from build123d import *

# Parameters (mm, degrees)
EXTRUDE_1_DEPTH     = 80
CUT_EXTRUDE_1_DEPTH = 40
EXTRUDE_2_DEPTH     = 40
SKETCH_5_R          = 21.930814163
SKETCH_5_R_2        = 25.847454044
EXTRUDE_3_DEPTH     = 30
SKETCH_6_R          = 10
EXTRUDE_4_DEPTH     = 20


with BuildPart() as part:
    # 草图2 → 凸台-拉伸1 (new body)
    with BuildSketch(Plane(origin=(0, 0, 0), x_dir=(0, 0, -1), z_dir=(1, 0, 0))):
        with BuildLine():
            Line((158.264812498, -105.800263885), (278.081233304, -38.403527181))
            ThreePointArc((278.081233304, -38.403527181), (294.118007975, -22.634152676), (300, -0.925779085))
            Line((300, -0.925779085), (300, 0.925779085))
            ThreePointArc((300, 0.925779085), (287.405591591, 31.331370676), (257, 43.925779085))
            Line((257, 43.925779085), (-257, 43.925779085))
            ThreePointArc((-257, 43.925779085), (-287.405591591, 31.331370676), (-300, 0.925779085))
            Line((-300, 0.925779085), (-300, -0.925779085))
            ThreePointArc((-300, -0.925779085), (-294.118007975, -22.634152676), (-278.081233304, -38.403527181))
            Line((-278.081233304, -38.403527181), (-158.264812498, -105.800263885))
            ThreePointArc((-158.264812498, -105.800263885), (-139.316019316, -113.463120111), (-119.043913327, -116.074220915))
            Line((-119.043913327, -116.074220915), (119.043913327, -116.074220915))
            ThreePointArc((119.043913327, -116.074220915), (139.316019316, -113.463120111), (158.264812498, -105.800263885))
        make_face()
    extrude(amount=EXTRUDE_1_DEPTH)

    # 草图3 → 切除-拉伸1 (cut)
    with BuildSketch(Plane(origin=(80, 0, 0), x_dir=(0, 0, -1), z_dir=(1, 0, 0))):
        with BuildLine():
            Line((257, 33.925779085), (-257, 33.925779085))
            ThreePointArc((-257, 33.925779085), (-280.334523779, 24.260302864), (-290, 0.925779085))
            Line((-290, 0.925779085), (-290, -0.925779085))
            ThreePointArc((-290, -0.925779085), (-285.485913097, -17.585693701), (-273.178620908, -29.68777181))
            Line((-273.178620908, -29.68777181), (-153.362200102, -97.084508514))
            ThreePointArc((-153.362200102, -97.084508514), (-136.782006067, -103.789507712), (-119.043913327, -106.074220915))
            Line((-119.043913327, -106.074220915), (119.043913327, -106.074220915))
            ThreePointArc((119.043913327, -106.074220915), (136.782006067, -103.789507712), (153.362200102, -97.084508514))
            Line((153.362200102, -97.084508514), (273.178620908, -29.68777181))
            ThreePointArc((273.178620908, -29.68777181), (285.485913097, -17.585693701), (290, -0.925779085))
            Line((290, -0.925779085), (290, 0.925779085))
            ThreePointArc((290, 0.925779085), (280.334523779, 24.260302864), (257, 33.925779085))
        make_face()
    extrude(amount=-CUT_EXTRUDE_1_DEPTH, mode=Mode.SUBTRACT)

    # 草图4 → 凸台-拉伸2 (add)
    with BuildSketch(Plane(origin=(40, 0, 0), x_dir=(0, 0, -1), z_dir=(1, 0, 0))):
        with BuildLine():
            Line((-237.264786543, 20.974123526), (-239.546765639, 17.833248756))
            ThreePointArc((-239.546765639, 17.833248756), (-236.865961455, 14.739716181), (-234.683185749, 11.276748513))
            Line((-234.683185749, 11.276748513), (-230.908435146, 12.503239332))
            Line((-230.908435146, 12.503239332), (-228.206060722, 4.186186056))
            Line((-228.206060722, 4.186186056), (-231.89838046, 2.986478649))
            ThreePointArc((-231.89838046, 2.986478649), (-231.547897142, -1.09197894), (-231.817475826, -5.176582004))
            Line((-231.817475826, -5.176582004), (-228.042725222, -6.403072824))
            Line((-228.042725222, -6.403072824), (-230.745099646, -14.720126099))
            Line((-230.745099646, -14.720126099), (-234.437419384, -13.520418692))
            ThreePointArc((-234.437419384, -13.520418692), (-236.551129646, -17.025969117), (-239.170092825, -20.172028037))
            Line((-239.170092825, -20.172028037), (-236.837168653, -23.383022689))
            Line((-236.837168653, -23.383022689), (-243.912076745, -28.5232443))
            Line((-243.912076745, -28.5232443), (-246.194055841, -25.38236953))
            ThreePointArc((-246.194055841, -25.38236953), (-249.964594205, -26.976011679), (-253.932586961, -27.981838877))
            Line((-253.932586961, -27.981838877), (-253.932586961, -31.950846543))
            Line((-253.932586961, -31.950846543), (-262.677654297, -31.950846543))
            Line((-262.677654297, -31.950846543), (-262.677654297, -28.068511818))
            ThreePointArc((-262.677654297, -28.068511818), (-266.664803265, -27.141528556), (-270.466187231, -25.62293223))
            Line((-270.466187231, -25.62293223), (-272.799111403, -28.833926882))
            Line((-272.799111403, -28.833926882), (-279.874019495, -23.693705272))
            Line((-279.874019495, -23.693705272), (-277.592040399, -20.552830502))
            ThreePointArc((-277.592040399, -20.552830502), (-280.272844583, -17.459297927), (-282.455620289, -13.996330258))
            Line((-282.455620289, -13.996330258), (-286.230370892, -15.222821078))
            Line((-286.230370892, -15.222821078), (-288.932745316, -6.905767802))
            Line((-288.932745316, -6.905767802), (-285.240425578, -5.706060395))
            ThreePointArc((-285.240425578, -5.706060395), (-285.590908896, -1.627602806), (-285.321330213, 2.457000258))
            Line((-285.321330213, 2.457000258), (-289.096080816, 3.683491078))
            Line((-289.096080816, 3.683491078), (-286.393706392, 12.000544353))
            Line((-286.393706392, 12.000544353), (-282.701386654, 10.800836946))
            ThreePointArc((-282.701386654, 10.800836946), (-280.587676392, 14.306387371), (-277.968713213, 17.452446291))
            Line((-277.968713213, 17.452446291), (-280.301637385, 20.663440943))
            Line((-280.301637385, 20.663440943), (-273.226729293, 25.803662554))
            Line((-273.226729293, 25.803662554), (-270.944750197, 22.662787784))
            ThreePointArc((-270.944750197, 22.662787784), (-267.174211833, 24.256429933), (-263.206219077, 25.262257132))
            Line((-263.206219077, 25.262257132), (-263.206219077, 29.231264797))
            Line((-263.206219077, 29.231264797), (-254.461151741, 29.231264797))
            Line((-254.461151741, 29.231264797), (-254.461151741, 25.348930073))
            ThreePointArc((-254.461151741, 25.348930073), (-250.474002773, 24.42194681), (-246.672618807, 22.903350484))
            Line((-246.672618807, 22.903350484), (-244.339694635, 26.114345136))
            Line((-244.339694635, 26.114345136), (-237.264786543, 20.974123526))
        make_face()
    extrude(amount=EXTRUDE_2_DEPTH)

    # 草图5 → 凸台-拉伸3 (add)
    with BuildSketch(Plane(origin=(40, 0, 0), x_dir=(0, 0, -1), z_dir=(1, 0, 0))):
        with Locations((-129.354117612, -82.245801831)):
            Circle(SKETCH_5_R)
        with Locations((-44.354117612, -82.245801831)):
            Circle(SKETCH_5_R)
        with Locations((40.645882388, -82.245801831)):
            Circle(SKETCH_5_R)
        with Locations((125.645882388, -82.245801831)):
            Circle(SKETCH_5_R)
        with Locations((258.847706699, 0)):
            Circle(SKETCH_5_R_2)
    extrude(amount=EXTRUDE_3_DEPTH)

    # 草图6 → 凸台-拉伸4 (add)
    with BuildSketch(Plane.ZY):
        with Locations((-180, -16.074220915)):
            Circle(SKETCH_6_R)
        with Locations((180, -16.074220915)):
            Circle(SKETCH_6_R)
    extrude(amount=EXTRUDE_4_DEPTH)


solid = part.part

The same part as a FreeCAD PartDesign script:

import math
import FreeCAD as App
import Part
import Sketcher
from FreeCAD import Vector
Q = App.Units.Quantity

doc = App.newDocument("Part")
body = doc.addObject("PartDesign::Body", "Body")

# Sketch on YZ plane
sketch1 = body.newObject("Sketcher::SketchObject", "Sketch")
sketch1.AttachmentSupport = (doc.getObject("YZ_Plane"), [""])
sketch1.MapMode = "FlatFace"
sketch1.addGeometry(Part.LineSegment(Vector(-105.8, -158.3, 0), Vector(-38.4, -278.1, 0)), False)
sketch1.addGeometry(Part.ArcOfCircle(Part.Circle(Vector(-0.9, -257, 0), Vector(0, 0, 1), 43), math.radians(-151), math.radians(-90)), False)
sketch1.addGeometry(Part.LineSegment(Vector(-0.9, -300, 0), Vector(0.9, -300, 0)), False)
sketch1.addGeometry(Part.ArcOfCircle(Part.Circle(Vector(0.9, -257, 0), Vector(0, 0, 1), 43), math.radians(-90), math.radians(0)), False)
sketch1.addGeometry(Part.LineSegment(Vector(43.9, -257, 0), Vector(43.9, 257, 0)), False)
sketch1.addGeometry(Part.ArcOfCircle(Part.Circle(Vector(0.9, 257, 0), Vector(0, 0, 1), 43), math.radians(0), math.radians(90)), False)
sketch1.addGeometry(Part.LineSegment(Vector(0.9, 300, 0), Vector(-0.9, 300, 0)), False)
sketch1.addGeometry(Part.ArcOfCircle(Part.Circle(Vector(-0.9, 257, 0), Vector(0, 0, 1), 43), math.radians(90), math.radians(151)), False)
sketch1.addGeometry(Part.LineSegment(Vector(-38.4, 278.1, 0), Vector(-105.8, 158.3, 0)), False)
sketch1.addGeometry(Part.ArcOfCircle(Part.Circle(Vector(-36.1, 119, 0), Vector(0, 0, 1), 80), math.radians(151), math.radians(180)), False)
sketch1.addGeometry(Part.LineSegment(Vector(-116.1, 119, 0), Vector(-116.1, -119, 0)), False)
sketch1.addGeometry(Part.ArcOfCircle(Part.Circle(Vector(-36.1, -119, 0), Vector(0, 0, 1), 80), math.radians(-180), math.radians(-151)), False)
sketch1.addConstraint(Sketcher.Constraint("Tangent", 0, 2, 1, 1))
sketch1.addConstraint(Sketcher.Constraint("Tangent", 1, 2, 2, 1))
sketch1.addConstraint(Sketcher.Constraint("Tangent", 2, 2, 3, 1))
sketch1.addConstraint(Sketcher.Constraint("Tangent", 3, 2, 4, 1))
sketch1.addConstraint(Sketcher.Constraint("Tangent", 4, 2, 5, 1))
sketch1.addConstraint(Sketcher.Constraint("Tangent", 5, 2, 6, 1))
sketch1.addConstraint(Sketcher.Constraint("Tangent", 6, 2, 7, 1))
sketch1.addConstraint(Sketcher.Constraint("Tangent", 7, 2, 8, 1))
sketch1.addConstraint(Sketcher.Constraint("Tangent", 8, 2, 9, 1))
sketch1.addConstraint(Sketcher.Constraint("Tangent", 9, 2, 10, 1))
sketch1.addConstraint(Sketcher.Constraint("Tangent", 10, 2, 11, 1))
sketch1.addConstraint(Sketcher.Constraint("Tangent", 11, 2, 0, 1))
sketch1.addConstraint(Sketcher.Constraint("Horizontal", 2))
sketch1.addConstraint(Sketcher.Constraint("Vertical", 4))
sketch1.addConstraint(Sketcher.Constraint("Horizontal", 6))
sketch1.addConstraint(Sketcher.Constraint("Vertical", 10))
sketch1.addConstraint(Sketcher.Constraint("Equal", 1, 3))
sketch1.addConstraint(Sketcher.Constraint("Equal", 3, 5))
sketch1.addConstraint(Sketcher.Constraint("Equal", 5, 7))
sketch1.addConstraint(Sketcher.Constraint("Equal", 9, 11))
sketch1.addConstraint(Sketcher.Constraint("Symmetric", 1, 3, 5, 3, -1, 1))
sketch1.addConstraint(Sketcher.Constraint("Symmetric", 0, 2, 7, 2, -1))
sketch1.addConstraint(Sketcher.Constraint("Radius", 1, 43.0))
sketch1.addConstraint(Sketcher.Constraint("Radius", 9, 80.0))
sketch1.addConstraint(Sketcher.Constraint("DistanceY", 4, 1, 4, 2, 514.0))
sketch1.addConstraint(Sketcher.Constraint("DistanceX", 9, 3, 5, 3, 37.0))
sketch1.addConstraint(Sketcher.Constraint("DistanceX", 2, 1, 2, 2, 1.851558))
sketch1.addConstraint(Sketcher.Constraint("DistanceY", 9, 3, 8, 2, 39.220899))
pad1 = body.newObject("PartDesign::Pad", "Pad")
pad1.Profile = sketch1
pad1.Length = 80

# Sketch on YZ plane
sketch2 = body.newObject("Sketcher::SketchObject", "Sketch001")
sketch2.AttachmentSupport = (doc.getObject("YZ_Plane"), [""])
sketch2.MapMode = "FlatFace"
sketch2.AttachmentOffset = App.Placement(Vector(0, 0, 80), App.Rotation())
sketch2.addGeometry(Part.LineSegment(Vector(33.9, -257, 0), Vector(33.9, 257, 0)), False)
sketch2.addGeometry(Part.ArcOfCircle(Part.Circle(Vector(0.9, 257, 0), Vector(0, 0, 1), 33), math.radians(0), math.radians(90)), False)
sketch2.addGeometry(Part.LineSegment(Vector(0.9, 290, 0), Vector(-0.9, 290, 0)), False)
sketch2.addGeometry(Part.ArcOfCircle(Part.Circle(Vector(-0.9, 257, 0), Vector(0, 0, 1), 33), math.radians(90), math.radians(151)), False)
sketch2.addGeometry(Part.LineSegment(Vector(-29.7, 273.2, 0), Vector(-97.1, 153.4, 0)), False)
sketch2.addGeometry(Part.ArcOfCircle(Part.Circle(Vector(-36.1, 119, 0), Vector(0, 0, 1), 70), math.radians(151), math.radians(180)), False)
sketch2.addGeometry(Part.LineSegment(Vector(-106.1, 119, 0), Vector(-106.1, -119, 0)), False)
sketch2.addGeometry(Part.ArcOfCircle(Part.Circle(Vector(-36.1, -119, 0), Vector(0, 0, 1), 70), math.radians(180), math.radians(209)), False)
sketch2.addGeometry(Part.LineSegment(Vector(-97.1, -153.4, 0), Vector(-29.7, -273.2, 0)), False)
sketch2.addGeometry(Part.ArcOfCircle(Part.Circle(Vector(-0.9, -257, 0), Vector(0, 0, 1), 33), math.radians(-151), math.radians(-90)), False)
sketch2.addGeometry(Part.LineSegment(Vector(-0.9, -290, 0), Vector(0.9, -290, 0)), False)
sketch2.addGeometry(Part.ArcOfCircle(Part.Circle(Vector(0.9, -257, 0), Vector(0, 0, 1), 33), math.radians(-90), math.radians(0)), False)
sketch2.addConstraint(Sketcher.Constraint("Tangent", 0, 2, 1, 1))
sketch2.addConstraint(Sketcher.Constraint("Tangent", 1, 2, 2, 1))
sketch2.addConstraint(Sketcher.Constraint("Tangent", 2, 2, 3, 1))
sketch2.addConstraint(Sketcher.Constraint("Tangent", 3, 2, 4, 1))
sketch2.addConstraint(Sketcher.Constraint("Tangent", 4, 2, 5, 1))
sketch2.addConstraint(Sketcher.Constraint("Tangent", 5, 2, 6, 1))
sketch2.addConstraint(Sketcher.Constraint("Tangent", 6, 2, 7, 1))
sketch2.addConstraint(Sketcher.Constraint("Tangent", 7, 2, 8, 1))
sketch2.addConstraint(Sketcher.Constraint("Tangent", 8, 2, 9, 1))
sketch2.addConstraint(Sketcher.Constraint("Tangent", 9, 2, 10, 1))
sketch2.addConstraint(Sketcher.Constraint("Tangent", 10, 2, 11, 1))
sketch2.addConstraint(Sketcher.Constraint("Tangent", 11, 2, 0, 1))
sketch2.addConstraint(Sketcher.Constraint("Vertical", 0))
sketch2.addConstraint(Sketcher.Constraint("Horizontal", 2))
sketch2.addConstraint(Sketcher.Constraint("Vertical", 6))
sketch2.addConstraint(Sketcher.Constraint("Horizontal", 10))
sketch2.addConstraint(Sketcher.Constraint("Equal", 1, 3))
sketch2.addConstraint(Sketcher.Constraint("Equal", 5, 7))
sketch2.addConstraint(Sketcher.Constraint("Equal", 3, 9))
sketch2.addConstraint(Sketcher.Constraint("Equal", 9, 11))
sketch2.addConstraint(Sketcher.Constraint("Symmetric", 1, 3, 9, 3, -1, 1))
sketch2.addConstraint(Sketcher.Constraint("Symmetric", 4, 2, 7, 2, -1))
sketch2.addConstraint(Sketcher.Constraint("Radius", 1, 33.0))
sketch2.addConstraint(Sketcher.Constraint("Radius", 5, 70.0))
sketch2.addConstraint(Sketcher.Constraint("DistanceY", 0, 1, 0, 2, 514.0))
sketch2.addConstraint(Sketcher.Constraint("DistanceX", 5, 3, 1, 3, 37.0))
sketch2.addConstraint(Sketcher.Constraint("DistanceX", 2, 2, 2, 1, 1.851558))
sketch2.addConstraint(Sketcher.Constraint("DistanceY", -1, 1, 4, 2, 153.3622))
pocket1 = body.newObject("PartDesign::Pocket", "Pocket")
pocket1.Profile = sketch2
pocket1.Length = 40

# Sketch on YZ plane
sketch3 = body.newObject("Sketcher::SketchObject", "Sketch002")
sketch3.AttachmentSupport = (doc.getObject("YZ_Plane"), [""])
sketch3.MapMode = "FlatFace"
sketch3.AttachmentOffset = App.Placement(Vector(0, 0, 40), App.Rotation())
sketch3.addGeometry(Part.LineSegment(Vector(17.8, 239.5, 0), Vector(21, 237.3, 0)), False)
sketch3.addGeometry(Part.LineSegment(Vector(21, 237.3, 0), Vector(26.1, 244.3, 0)), False)
sketch3.addGeometry(Part.LineSegment(Vector(26.1, 244.3, 0), Vector(22.9, 246.7, 0)), False)
sketch3.addGeometry(Part.ArcOfCircle(Part.Circle(Vector(-1.4, 258.6, 0), Vector(0, 0, 1), 27), math.radians(-26.12), math.radians(-8.74)), False)
sketch3.addGeometry(Part.LineSegment(Vector(25.3, 254.5, 0), Vector(29.2, 254.5, 0)), False)
sketch3.addGeometry(Part.LineSegment(Vector(29.2, 254.5, 0), Vector(29.2, 263.2, 0)), False)
sketch3.addGeometry(Part.LineSegment(Vector(29.2, 263.2, 0), Vector(25.3, 263.2, 0)), False)
sketch3.addGeometry(Part.ArcOfCircle(Part.Circle(Vector(-1.4, 258.6, 0), Vector(0, 0, 1), 27), math.radians(9.88), math.radians(27.26)), False)
sketch3.addGeometry(Part.LineSegment(Vector(22.7, 270.9, 0), Vector(25.8, 273.2, 0)), False)
sketch3.addGeometry(Part.LineSegment(Vector(25.8, 273.2, 0), Vector(20.7, 280.3, 0)), False)
sketch3.addGeometry(Part.LineSegment(Vector(20.7, 280.3, 0), Vector(17.5, 278, 0)), False)
sketch3.addGeometry(Part.ArcOfCircle(Part.Circle(Vector(-1.4, 258.6, 0), Vector(0, 0, 1), 27), math.radians(45.88), math.radians(63.26)), False)
sketch3.addGeometry(Part.LineSegment(Vector(10.8, 282.7, 0), Vector(12, 286.4, 0)), False)
sketch3.addGeometry(Part.LineSegment(Vector(12, 286.4, 0), Vector(3.7, 289.1, 0)), False)
sketch3.addGeometry(Part.LineSegment(Vector(3.7, 289.1, 0), Vector(2.5, 285.3, 0)), False)
sketch3.addGeometry(Part.ArcOfCircle(Part.Circle(Vector(-1.4, 258.6, 0), Vector(0, 0, 1), 27), math.radians(81.88), math.radians(99.26)), False)
sketch3.addGeometry(Part.LineSegment(Vector(-5.7, 285.2, 0), Vector(-6.9, 288.9, 0)), False)
sketch3.addGeometry(Part.LineSegment(Vector(-6.9, 288.9, 0), Vector(-15.2, 286.2, 0)), False)
sketch3.addGeometry(Part.LineSegment(Vector(-15.2, 286.2, 0), Vector(-14, 282.5, 0)), False)
sketch3.addGeometry(Part.ArcOfCircle(Part.Circle(Vector(-1.4, 258.6, 0), Vector(0, 0, 1), 27), math.radians(117.88), math.radians(135.26)), False)
sketch3.addGeometry(Part.LineSegment(Vector(-20.6, 277.6, 0), Vector(-23.7, 279.9, 0)), False)
sketch3.addGeometry(Part.LineSegment(Vector(-23.7, 279.9, 0), Vector(-28.8, 272.8, 0)), False)
sketch3.addGeometry(Part.LineSegment(Vector(-28.8, 272.8, 0), Vector(-25.6, 270.5, 0)), False)
sketch3.addGeometry(Part.ArcOfCircle(Part.Circle(Vector(-1.4, 258.6, 0), Vector(0, 0, 1), 27), math.radians(153.88), math.radians(171.26)), False)
sketch3.addGeometry(Part.LineSegment(Vector(-28.1, 262.7, 0), Vector(-32, 262.7, 0)), False)
sketch3.addGeometry(Part.LineSegment(Vector(-32, 262.7, 0), Vector(-32, 253.9, 0)), False)
sketch3.addGeometry(Part.LineSegment(Vector(-32, 253.9, 0), Vector(-28, 253.9, 0)), False)
sketch3.addGeometry(Part.ArcOfCircle(Part.Circle(Vector(-1.4, 258.6, 0), Vector(0, 0, 1), 27), math.radians(-170.12), math.radians(-152.74)), False)
sketch3.addGeometry(Part.LineSegment(Vector(-25.4, 246.2, 0), Vector(-28.5, 243.9, 0)), False)
sketch3.addGeometry(Part.LineSegment(Vector(-28.5, 243.9, 0), Vector(-23.4, 236.8, 0)), False)
sketch3.addGeometry(Part.LineSegment(Vector(-23.4, 236.8, 0), Vector(-20.2, 239.2, 0)), False)
sketch3.addGeometry(Part.ArcOfCircle(Part.Circle(Vector(-1.4, 258.6, 0), Vector(0, 0, 1), 27), math.radians(-134.12), math.radians(-116.74)), False)
sketch3.addGeometry(Part.LineSegment(Vector(-13.5, 234.4, 0), Vector(-14.7, 230.7, 0)), False)
sketch3.addGeometry(Part.LineSegment(Vector(-14.7, 230.7, 0), Vector(-6.4, 228, 0)), False)
sketch3.addGeometry(Part.LineSegment(Vector(-6.4, 228, 0), Vector(-5.2, 231.8, 0)), False)
sketch3.addGeometry(Part.ArcOfCircle(Part.Circle(Vector(-1.4, 258.6, 0), Vector(0, 0, 1), 27), math.radians(-98.12), math.radians(-80.74)), False)
sketch3.addGeometry(Part.LineSegment(Vector(3, 231.9, 0), Vector(4.2, 228.2, 0)), False)
sketch3.addGeometry(Part.LineSegment(Vector(4.2, 228.2, 0), Vector(12.5, 230.9, 0)), False)
sketch3.addGeometry(Part.LineSegment(Vector(12.5, 230.9, 0), Vector(11.3, 234.7, 0)), False)
sketch3.addGeometry(Part.ArcOfCircle(Part.Circle(Vector(-1.4, 258.6, 0), Vector(0, 0, 1), 27), math.radians(-62.12), math.radians(-44.74)), False)
sketch3.addConstraint(Sketcher.Constraint("Coincident", 0, 2, 1, 1))
sketch3.addConstraint(Sketcher.Constraint("Coincident", 1, 2, 2, 1))
sketch3.addConstraint(Sketcher.Constraint("Coincident", 2, 2, 3, 1))
sketch3.addConstraint(Sketcher.Constraint("Coincident", 3, 2, 4, 1))
sketch3.addConstraint(Sketcher.Constraint("Coincident", 4, 2, 5, 1))
sketch3.addConstraint(Sketcher.Constraint("Coincident", 5, 2, 6, 1))
sketch3.addConstraint(Sketcher.Constraint("Coincident", 6, 2, 7, 1))
sketch3.addConstraint(Sketcher.Constraint("Coincident", 7, 2, 8, 1))
sketch3.addConstraint(Sketcher.Constraint("Coincident", 8, 2, 9, 1))
sketch3.addConstraint(Sketcher.Constraint("Coincident", 9, 2, 10, 1))
sketch3.addConstraint(Sketcher.Constraint("Coincident", 10, 2, 11, 1))
sketch3.addConstraint(Sketcher.Constraint("Coincident", 11, 2, 12, 1))
sketch3.addConstraint(Sketcher.Constraint("Coincident", 12, 2, 13, 1))
sketch3.addConstraint(Sketcher.Constraint("Coincident", 13, 2, 14, 1))
sketch3.addConstraint(Sketcher.Constraint("Coincident", 14, 2, 15, 1))
sketch3.addConstraint(Sketcher.Constraint("Coincident", 15, 2, 16, 1))
sketch3.addConstraint(Sketcher.Constraint("Coincident", 16, 2, 17, 1))
sketch3.addConstraint(Sketcher.Constraint("Coincident", 17, 2, 18, 1))
sketch3.addConstraint(Sketcher.Constraint("Coincident", 18, 2, 19, 1))
sketch3.addConstraint(Sketcher.Constraint("Coincident", 19, 2, 20, 1))
sketch3.addConstraint(Sketcher.Constraint("Coincident", 20, 2, 21, 1))
sketch3.addConstraint(Sketcher.Constraint("Coincident", 21, 2, 22, 1))
sketch3.addConstraint(Sketcher.Constraint("Coincident", 22, 2, 23, 1))
sketch3.addConstraint(Sketcher.Constraint("Coincident", 23, 2, 24, 1))
sketch3.addConstraint(Sketcher.Constraint("Coincident", 24, 2, 25, 1))
sketch3.addConstraint(Sketcher.Constraint("Coincident", 25, 2, 26, 1))
sketch3.addConstraint(Sketcher.Constraint("Coincident", 26, 2, 27, 1))
sketch3.addConstraint(Sketcher.Constraint("Coincident", 27, 2, 28, 1))
sketch3.addConstraint(Sketcher.Constraint("Coincident", 28, 2, 29, 1))
sketch3.addConstraint(Sketcher.Constraint("Coincident", 29, 2, 30, 1))
sketch3.addConstraint(Sketcher.Constraint("Coincident", 30, 2, 31, 1))
sketch3.addConstraint(Sketcher.Constraint("Coincident", 31, 2, 32, 1))
sketch3.addConstraint(Sketcher.Constraint("Coincident", 32, 2, 33, 1))
sketch3.addConstraint(Sketcher.Constraint("Coincident", 33, 2, 34, 1))
sketch3.addConstraint(Sketcher.Constraint("Coincident", 34, 2, 35, 1))
sketch3.addConstraint(Sketcher.Constraint("Coincident", 35, 2, 36, 1))
sketch3.addConstraint(Sketcher.Constraint("Coincident", 36, 2, 37, 1))
sketch3.addConstraint(Sketcher.Constraint("Coincident", 37, 2, 38, 1))
sketch3.addConstraint(Sketcher.Constraint("Coincident", 38, 2, 39, 1))
sketch3.addConstraint(Sketcher.Constraint("Coincident", 39, 2, 0, 1))
sketch3.addConstraint(Sketcher.Constraint("Horizontal", 4))
sketch3.addConstraint(Sketcher.Constraint("Vertical", 5))
sketch3.addConstraint(Sketcher.Constraint("Horizontal", 6))
sketch3.addConstraint(Sketcher.Constraint("Horizontal", 24))
sketch3.addConstraint(Sketcher.Constraint("Vertical", 25))
sketch3.addConstraint(Sketcher.Constraint("Horizontal", 26))
sketch3.addConstraint(Sketcher.Constraint("Coincident", 7, 3, 3, 3))
sketch3.addConstraint(Sketcher.Constraint("Coincident", 11, 3, 3, 3))
sketch3.addConstraint(Sketcher.Constraint("Coincident", 15, 3, 3, 3))
sketch3.addConstraint(Sketcher.Constraint("Coincident", 19, 3, 3, 3))
sketch3.addConstraint(Sketcher.Constraint("Coincident", 23, 3, 3, 3))
sketch3.addConstraint(Sketcher.Constraint("Coincident", 27, 3, 3, 3))
sketch3.addConstraint(Sketcher.Constraint("Coincident", 31, 3, 3, 3))
sketch3.addConstraint(Sketcher.Constraint("Coincident", 35, 3, 3, 3))
sketch3.addConstraint(Sketcher.Constraint("Coincident", 39, 3, 3, 3))
sketch3.addConstraint(Sketcher.Constraint("Equal", 3, 7))
sketch3.addConstraint(Sketcher.Constraint("Equal", 7, 11))
sketch3.addConstraint(Sketcher.Constraint("Equal", 11, 15))
sketch3.addConstraint(Sketcher.Constraint("Equal", 15, 19))
sketch3.addConstraint(Sketcher.Constraint("Equal", 19, 23))
sketch3.addConstraint(Sketcher.Constraint("Equal", 23, 27))
sketch3.addConstraint(Sketcher.Constraint("Equal", 27, 31))
sketch3.addConstraint(Sketcher.Constraint("Equal", 31, 35))
sketch3.addConstraint(Sketcher.Constraint("Equal", 35, 39))
sketch3.addConstraint(Sketcher.Constraint("Perpendicular", 0, 1))
sketch3.addConstraint(Sketcher.Constraint("Perpendicular", 1, 2))
sketch3.addConstraint(Sketcher.Constraint("Perpendicular", 8, 9))
sketch3.addConstraint(Sketcher.Constraint("Perpendicular", 9, 10))
sketch3.addConstraint(Sketcher.Constraint("Perpendicular", 12, 13))
sketch3.addConstraint(Sketcher.Constraint("Perpendicular", 13, 14))
sketch3.addConstraint(Sketcher.Constraint("Perpendicular", 16, 17))
sketch3.addConstraint(Sketcher.Constraint("Perpendicular", 17, 18))
sketch3.addConstraint(Sketcher.Constraint("Parallel", 2, 20))
sketch3.addConstraint(Sketcher.Constraint("Perpendicular", 20, 21))
sketch3.addConstraint(Sketcher.Constraint("Perpendicular", 21, 22))
sketch3.addConstraint(Sketcher.Constraint("Parallel", 10, 28))
sketch3.addConstraint(Sketcher.Constraint("Perpendicular", 28, 29))
sketch3.addConstraint(Sketcher.Constraint("Perpendicular", 29, 30))
sketch3.addConstraint(Sketcher.Constraint("Parallel", 14, 32))
sketch3.addConstraint(Sketcher.Constraint("Perpendicular", 32, 33))
sketch3.addConstraint(Sketcher.Constraint("Perpendicular", 33, 34))
sketch3.addConstraint(Sketcher.Constraint("Parallel", 18, 36))
sketch3.addConstraint(Sketcher.Constraint("Perpendicular", 36, 37))
sketch3.addConstraint(Sketcher.Constraint("Perpendicular", 37, 38))
sketch3.addConstraint(Sketcher.Constraint("Equal", 4, 24))
sketch3.addConstraint(Sketcher.Constraint("Equal", 6, 26))
sketch3.addConstraint(Sketcher.Constraint("Equal", 5, 25))
sketch3.addConstraint(Sketcher.Constraint("Equal", 0, 8))
sketch3.addConstraint(Sketcher.Constraint("Equal", 1, 9))
sketch3.addConstraint(Sketcher.Constraint("Equal", 2, 10))
sketch3.addConstraint(Sketcher.Constraint("Equal", 8, 12))
sketch3.addConstraint(Sketcher.Constraint("Equal", 9, 13))
sketch3.addConstraint(Sketcher.Constraint("Equal", 10, 14))
sketch3.addConstraint(Sketcher.Constraint("Equal", 12, 16))
sketch3.addConstraint(Sketcher.Constraint("Equal", 13, 17))
sketch3.addConstraint(Sketcher.Constraint("Equal", 14, 18))
sketch3.addConstraint(Sketcher.Constraint("Equal", 16, 20))
sketch3.addConstraint(Sketcher.Constraint("Equal", 17, 21))
sketch3.addConstraint(Sketcher.Constraint("Equal", 18, 22))
sketch3.addConstraint(Sketcher.Constraint("Equal", 20, 28))
sketch3.addConstraint(Sketcher.Constraint("Equal", 21, 29))
sketch3.addConstraint(Sketcher.Constraint("Equal", 22, 30))
sketch3.addConstraint(Sketcher.Constraint("Equal", 28, 32))
sketch3.addConstraint(Sketcher.Constraint("Equal", 29, 33))
sketch3.addConstraint(Sketcher.Constraint("Equal", 30, 34))
sketch3.addConstraint(Sketcher.Constraint("Equal", 32, 36))
sketch3.addConstraint(Sketcher.Constraint("Equal", 33, 37))
sketch3.addConstraint(Sketcher.Constraint("Equal", 34, 38))
sketch3.addConstraint(Sketcher.Constraint("Angle", 0, Q("-36 deg")))
sketch3.addConstraint(Sketcher.Constraint("Angle", 8, Q("36 deg")))
sketch3.addConstraint(Sketcher.Constraint("Angle", 12, Q("72 deg")))
sketch3.addConstraint(Sketcher.Constraint("Angle", 16, Q("108 deg")))
sketch3.addConstraint(Sketcher.Constraint("DistanceX", -1, 1, 14, 2, 2.457))
sketch3.addConstraint(Sketcher.Constraint("Radius", 3, 27.022833))
sketch3.addConstraint(Sketcher.Constraint("DistanceY", -1, 1, 32, 2, 230.7451))
sketch3.addConstraint(Sketcher.Constraint("DistanceY", 2, 2, 5, 2, 16.5336))
sketch3.addConstraint(Sketcher.Constraint("DistanceY", 3, 2, 7, 2, 16.483598))
sketch3.addConstraint(Sketcher.Constraint("DistanceX", 12, 2, 10, 2, 5.451902))
sketch3.addConstraint(Sketcher.Constraint("DistanceX", 19, 2, 18, 2, 6.5565))
sketch3.addConstraint(Sketcher.Constraint("DistanceY", 20, 2, 18, 2, 2.581601))
sketch3.addConstraint(Sketcher.Constraint("DistanceX", 4, 1, 4, 2, 3.882335))
pad2 = body.newObject("PartDesign::Pad", "Pad001")
pad2.Profile = sketch3
pad2.Length = 40

# Sketch on YZ plane
sketch4 = body.newObject("Sketcher::SketchObject", "Sketch003")
sketch4.AttachmentSupport = (doc.getObject("YZ_Plane"), [""])
sketch4.MapMode = "FlatFace"
sketch4.AttachmentOffset = App.Placement(Vector(0, 0, 40), App.Rotation())
sketch4.addGeometry(Part.Circle(Vector(-82, 129, 0), Vector(0, 0, 1), 22), False)
sketch4.addGeometry(Part.Circle(Vector(-82, 44, 0), Vector(0, 0, 1), 22), False)
sketch4.addGeometry(Part.Circle(Vector(-82, -41, 0), Vector(0, 0, 1), 22), False)
sketch4.addGeometry(Part.Circle(Vector(-82, -126, 0), Vector(0, 0, 1), 22), False)
sketch4.addGeometry(Part.Circle(Vector(0, -259, 0), Vector(0, 0, 1), 26), False)
sketch4.addConstraint(Sketcher.Constraint("Equal", 0, 1))
sketch4.addConstraint(Sketcher.Constraint("Equal", 1, 2))
sketch4.addConstraint(Sketcher.Constraint("Equal", 2, 3))
sketch4.addConstraint(Sketcher.Constraint("PointOnObject", 4, 3, -2))
sketch4.addConstraint(Sketcher.Constraint("Vertical", 0, 3, 1, 3))
sketch4.addConstraint(Sketcher.Constraint("Vertical", 1, 3, 2, 3))
sketch4.addConstraint(Sketcher.Constraint("Vertical", 2, 3, 3, 3))
sketch4.addConstraint(Sketcher.Constraint("DistanceY", 1, 3, 0, 3, 85.0))
sketch4.addConstraint(Sketcher.Constraint("DistanceY", 2, 3, 1, 3, 85.0))
sketch4.addConstraint(Sketcher.Constraint("DistanceY", 3, 3, 2, 3, 85.0))
sketch4.addConstraint(Sketcher.Constraint("Diameter", 0, 43.861628))
sketch4.addConstraint(Sketcher.Constraint("Diameter", 4, 51.694908))
sketch4.addConstraint(Sketcher.Constraint("DistanceX", 0, 3, -1, 1, 82.245802))
sketch4.addConstraint(Sketcher.Constraint("DistanceY", -1, 1, 0, 3, 129.354118))
sketch4.addConstraint(Sketcher.Constraint("DistanceY", 4, 3, -1, 1, 258.847707))
pad3 = body.newObject("PartDesign::Pad", "Pad002")
pad3.Profile = sketch4
pad3.Length = 30

# Sketch on YZ plane
sketch5 = body.newObject("Sketcher::SketchObject", "Sketch004")
sketch5.AttachmentSupport = (doc.getObject("YZ_Plane"), [""])
sketch5.MapMode = "FlatFace"
sketch5.addGeometry(Part.Circle(Vector(-16, -180, 0), Vector(0, 0, 1), 10), False)
sketch5.addGeometry(Part.Circle(Vector(-16, 180, 0), Vector(0, 0, 1), 10), False)
sketch5.addConstraint(Sketcher.Constraint("Equal", 0, 1))
sketch5.addConstraint(Sketcher.Constraint("Symmetric", 0, 3, 1, 3, -1))
sketch5.addConstraint(Sketcher.Constraint("Diameter", 0, 20.0))
sketch5.addConstraint(Sketcher.Constraint("DistanceY", 0, 3, -1, 1, 180.0))
sketch5.addConstraint(Sketcher.Constraint("DistanceX", 0, 3, -1, 1, 16.074221))
pad4 = body.newObject("PartDesign::Pad", "Pad003")
pad4.Profile = sketch5
pad4.Length = 20
pad4.Reversed = True

doc.recompute()
